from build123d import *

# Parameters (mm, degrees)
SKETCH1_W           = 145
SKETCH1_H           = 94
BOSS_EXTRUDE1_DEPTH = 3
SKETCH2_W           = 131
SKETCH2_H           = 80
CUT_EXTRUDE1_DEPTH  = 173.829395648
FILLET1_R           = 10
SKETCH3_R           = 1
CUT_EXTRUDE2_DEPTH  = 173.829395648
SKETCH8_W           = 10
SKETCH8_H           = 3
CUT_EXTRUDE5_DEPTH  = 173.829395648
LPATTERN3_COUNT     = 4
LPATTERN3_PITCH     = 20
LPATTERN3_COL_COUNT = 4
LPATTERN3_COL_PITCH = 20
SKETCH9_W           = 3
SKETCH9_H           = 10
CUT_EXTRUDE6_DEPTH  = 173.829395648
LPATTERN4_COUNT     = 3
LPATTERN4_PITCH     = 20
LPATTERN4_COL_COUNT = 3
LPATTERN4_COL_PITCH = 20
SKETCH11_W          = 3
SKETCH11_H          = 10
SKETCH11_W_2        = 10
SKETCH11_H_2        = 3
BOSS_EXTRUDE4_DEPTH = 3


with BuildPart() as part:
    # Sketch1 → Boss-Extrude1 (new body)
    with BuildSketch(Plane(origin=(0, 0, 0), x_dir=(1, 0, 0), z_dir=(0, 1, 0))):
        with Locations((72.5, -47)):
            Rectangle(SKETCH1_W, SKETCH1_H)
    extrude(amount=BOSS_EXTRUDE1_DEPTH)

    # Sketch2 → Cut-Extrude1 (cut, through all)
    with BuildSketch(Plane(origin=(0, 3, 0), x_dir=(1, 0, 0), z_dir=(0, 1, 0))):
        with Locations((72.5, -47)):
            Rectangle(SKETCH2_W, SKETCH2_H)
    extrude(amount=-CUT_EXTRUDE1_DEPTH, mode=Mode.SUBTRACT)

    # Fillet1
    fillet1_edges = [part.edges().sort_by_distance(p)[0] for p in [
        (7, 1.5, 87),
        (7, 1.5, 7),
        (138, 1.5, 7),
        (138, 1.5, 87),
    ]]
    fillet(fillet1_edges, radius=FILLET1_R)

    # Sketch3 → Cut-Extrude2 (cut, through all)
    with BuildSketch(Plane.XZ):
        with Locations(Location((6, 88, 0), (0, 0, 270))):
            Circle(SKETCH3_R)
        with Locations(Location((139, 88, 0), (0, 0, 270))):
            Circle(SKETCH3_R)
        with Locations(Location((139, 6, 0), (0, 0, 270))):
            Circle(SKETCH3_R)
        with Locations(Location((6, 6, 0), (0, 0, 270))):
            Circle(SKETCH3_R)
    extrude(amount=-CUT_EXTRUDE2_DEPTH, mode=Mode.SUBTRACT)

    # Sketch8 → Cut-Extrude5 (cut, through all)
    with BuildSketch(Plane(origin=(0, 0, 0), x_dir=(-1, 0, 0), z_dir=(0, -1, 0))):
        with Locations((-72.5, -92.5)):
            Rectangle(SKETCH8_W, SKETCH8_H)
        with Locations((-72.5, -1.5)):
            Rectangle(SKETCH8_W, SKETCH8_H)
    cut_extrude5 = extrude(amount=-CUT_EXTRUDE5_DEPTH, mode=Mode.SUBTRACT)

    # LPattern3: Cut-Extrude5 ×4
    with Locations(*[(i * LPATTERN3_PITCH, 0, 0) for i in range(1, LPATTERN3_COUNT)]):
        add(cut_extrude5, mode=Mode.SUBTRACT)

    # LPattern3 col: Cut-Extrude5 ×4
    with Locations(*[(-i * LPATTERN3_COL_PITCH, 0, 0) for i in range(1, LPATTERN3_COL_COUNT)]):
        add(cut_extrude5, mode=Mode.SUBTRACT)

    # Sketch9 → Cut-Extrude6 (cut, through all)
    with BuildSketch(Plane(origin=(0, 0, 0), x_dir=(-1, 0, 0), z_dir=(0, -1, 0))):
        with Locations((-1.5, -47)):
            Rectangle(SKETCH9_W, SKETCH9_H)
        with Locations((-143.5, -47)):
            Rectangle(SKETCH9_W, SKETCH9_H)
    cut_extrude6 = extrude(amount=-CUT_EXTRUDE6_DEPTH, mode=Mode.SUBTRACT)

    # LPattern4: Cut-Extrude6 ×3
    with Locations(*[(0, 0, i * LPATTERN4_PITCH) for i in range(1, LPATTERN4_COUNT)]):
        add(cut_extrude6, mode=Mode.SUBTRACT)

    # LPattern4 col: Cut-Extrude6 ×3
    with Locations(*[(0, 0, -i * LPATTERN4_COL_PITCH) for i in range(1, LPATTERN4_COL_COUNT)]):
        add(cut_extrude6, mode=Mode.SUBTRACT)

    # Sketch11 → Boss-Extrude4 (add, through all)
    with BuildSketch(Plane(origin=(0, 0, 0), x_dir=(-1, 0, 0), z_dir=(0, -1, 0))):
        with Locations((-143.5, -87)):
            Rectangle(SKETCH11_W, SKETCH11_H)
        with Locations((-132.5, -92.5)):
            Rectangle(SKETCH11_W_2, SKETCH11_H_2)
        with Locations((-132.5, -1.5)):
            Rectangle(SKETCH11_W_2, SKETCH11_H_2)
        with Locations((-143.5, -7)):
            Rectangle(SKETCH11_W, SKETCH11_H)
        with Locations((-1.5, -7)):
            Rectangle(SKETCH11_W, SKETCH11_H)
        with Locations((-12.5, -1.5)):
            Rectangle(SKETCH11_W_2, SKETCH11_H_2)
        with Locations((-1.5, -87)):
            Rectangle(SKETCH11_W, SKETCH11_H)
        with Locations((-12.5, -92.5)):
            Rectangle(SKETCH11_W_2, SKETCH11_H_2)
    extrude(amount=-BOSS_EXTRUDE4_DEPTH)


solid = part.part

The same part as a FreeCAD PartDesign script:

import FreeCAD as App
import Part
import Sketcher
Q = App.Units.Quantity


def edges_at(feature, points):
    """Names of the edges that pass closest to the given points."""
    edges = feature.Shape.Edges
    near = lambda p: min(range(len(edges)), key=lambda i: edges[i].distToShape(Part.Vertex(*p))[0])
    return sorted({f"Edge{near(p) + 1}" for p in points})

doc = App.newDocument("Part")
body = doc.addObject("PartDesign::Body", "Body")

# Sketch on XZ plane
sketch1 = body.newObject("Sketcher::SketchObject", "Sketch")
sketch1.AttachmentSupport = (doc.getObject("XZ_Plane"), [""])
sketch1.MapMode = "FlatFace"
sketch1.addGeometry([
    Part.LineSegment(App.Vector(0, 0, 0), App.Vector(0, 94, 0)),
    Part.LineSegment(App.Vector(0, 94, 0), App.Vector(145, 94, 0)),
    Part.LineSegment(App.Vector(145, 94, 0), App.Vector(145, 0, 0)),
    Part.LineSegment(App.Vector(145, 0, 0), App.Vector(0, 0, 0)),
], False)
sketch1.addConstraint([
    Sketcher.Constraint("Coincident", 0, 2, 1, 1),
    Sketcher.Constraint("Coincident", 1, 2, 2, 1),
    Sketcher.Constraint("Coincident", 2, 2, 3, 1),
    Sketcher.Constraint("Coincident", 3, 2, 0, 1),
    Sketcher.Constraint("Vertical", 0),
    Sketcher.Constraint("Horizontal", 1),
    Sketcher.Constraint("Vertical", 2),
    Sketcher.Constraint("Horizontal", 3),
    Sketcher.Constraint("Coincident", 3, 2, -1, 1),
    Sketcher.Constraint("DistanceX", 1, 1, 1, 2, Q("145 mm")),
    Sketcher.Constraint("DistanceY", 0, 1, 0, 2, Q("94 mm")),
])
pad1 = body.newObject("PartDesign::Pad", "Pad")
pad1.Profile = sketch1
pad1.Length = 3
pad1.Reversed = True

# Sketch on XZ plane
sketch2 = body.newObject("Sketcher::SketchObject", "Sketch001")
sketch2.AttachmentSupport = (doc.getObject("XZ_Plane"), [""])
sketch2.MapMode = "FlatFace"
sketch2.AttachmentOffset = App.Placement(App.Vector(0, 0, -3), App.Rotation())
sketch2.addGeometry([
    Part.LineSegment(App.Vector(7, 7, 0), App.Vector(7, 87, 0)),
    Part.LineSegment(App.Vector(7, 87, 0), App.Vector(138, 87, 0)),
    Part.LineSegment(App.Vector(138, 87, 0), App.Vector(138, 7, 0)),
    Part.LineSegment(App.Vector(138, 7, 0), App.Vector(7, 7, 0)),
], False)
sketch2.addConstraint([
    Sketcher.Constraint("Coincident", 0, 2, 1, 1),
    Sketcher.Constraint("Coincident", 1, 2, 2, 1),
    Sketcher.Constraint("Coincident", 2, 2, 3, 1),
    Sketcher.Constraint("Coincident", 3, 2, 0, 1),
    Sketcher.Constraint("Vertical", 0),
    Sketcher.Constraint("Horizontal", 1),
    Sketcher.Constraint("Vertical", 2),
    Sketcher.Constraint("Horizontal", 3),
    Sketcher.Constraint("DistanceX", 1, 1, 1, 2, Q("131 mm")),
    Sketcher.Constraint("DistanceY", 0, 1, 0, 2, Q("80 mm")),
    Sketcher.Constraint("DistanceX", -1, 1, 0, 2, Q("7 mm")),
    Sketcher.Constraint("DistanceY", -1, 1, 0, 2, Q("87 mm")),
])
pocket1 = body.newObject("PartDesign::Pocket", "Pocket")
pocket1.Profile = sketch2
pocket1.Type = "ThroughAll"
pocket1.Reversed = True
doc.recompute()

fillet = body.newObject("PartDesign::Fillet", "Fillet")
fillet.Base = (pocket1, edges_at(pocket1, [
    (7, 1.5, 87),
    (7, 1.5, 7),
    (138, 1.5, 7),
    (138, 1.5, 87),
]))
fillet.Radius = 10

# Sketch on XZ plane
sketch3 = body.newObject("Sketcher::SketchObject", "Sketch002")
sketch3.AttachmentSupport = (doc.getObject("XZ_Plane"), [""])
sketch3.MapMode = "FlatFace"
sketch3.addGeometry([
    Part.Circle(App.Vector(6, 88, 0), App.Vector(0, 0, 1), 1),
    Part.Circle(App.Vector(139, 88, 0), App.Vector(0, 0, 1), 1),
    Part.Circle(App.Vector(139, 6, 0), App.Vector(0, 0, 1), 1),
    Part.Circle(App.Vector(6, 6, 0), App.Vector(0, 0, 1), 1),
], False)
sketch3.addConstraint([
    Sketcher.Constraint("Equal", 0, 1),
    Sketcher.Constraint("Equal", 1, 2),
    Sketcher.Constraint("Equal", 2, 3),
    Sketcher.Constraint("Horizontal", 0, 3, 1, 3),
    Sketcher.Constraint("Horizontal", 2, 3, 3, 3),
    Sketcher.Constraint("Vertical", 1, 3, 2, 3),
    Sketcher.Constraint("Vertical", 0, 3, 3, 3),
    Sketcher.Constraint("Diameter", 0, Q("2 mm")),
    Sketcher.Constraint("DistanceX", -1, 1, 0, 3, Q("6 mm")),
    Sketcher.Constraint("DistanceY", -1, 1, 0, 3, Q("88 mm")),
    Sketcher.Constraint("DistanceX", -1, 1, 1, 3, Q("139 mm")),
    Sketcher.Constraint("DistanceY", -1, 1, 2, 3, Q("6 mm")),
])
pocket2 = body.newObject("PartDesign::Pocket", "Pocket001")
pocket2.Profile = sketch3
pocket2.Type = "ThroughAll"

# Sketch on XZ plane
sketch4 = body.newObject("Sketcher::SketchObject", "Sketch003")
sketch4.AttachmentSupport = (doc.getObject("XZ_Plane"), [""])
sketch4.MapMode = "FlatFace"
sketch4.addGeometry([
    Part.LineSegment(App.Vector(77.5, 91, 0), App.Vector(77.5, 94, 0)),  # 0
    Part.LineSegment(App.Vector(77.5, 94, 0), App.Vector(67.5, 94, 0)),  # 1
    Part.LineSegment(App.Vector(67.5, 94, 0), App.Vector(67.5, 91, 0)),  # 2
    Part.LineSegment(App.Vector(67.5, 91, 0), App.Vector(77.5, 91, 0)),  # 3
    Part.LineSegment(App.Vector(77.5, 0, 0), App.Vector(77.5, 3, 0)),  # 4
    Part.LineSegment(App.Vector(77.5, 3, 0), App.Vector(67.5, 3, 0)),  # 5
    Part.LineSegment(App.Vector(67.5, 3, 0), App.Vector(67.5, 0, 0)),  # 6
    Part.LineSegment(App.Vector(67.5, 0, 0), App.Vector(77.5, 0, 0)),  # 7
], False)
sketch4.addConstraint([
    Sketcher.Constraint("Coincident", 0, 2, 1, 1),
    Sketcher.Constraint("Coincident", 1, 2, 2, 1),
    Sketcher.Constraint("Coincident", 2, 2, 3, 1),
    Sketcher.Constraint("Coincident", 3, 2, 0, 1),
    Sketcher.Constraint("Coincident", 4, 2, 5, 1),
    Sketcher.Constraint("Coincident", 5, 2, 6, 1),
    Sketcher.Constraint("Coincident", 6, 2, 7, 1),
    Sketcher.Constraint("Coincident", 7, 2, 4, 1),
    Sketcher.Constraint("Vertical", 0),
    Sketcher.Constraint("Horizontal", 1),
    Sketcher.Constraint("Vertical", 2),
    Sketcher.Constraint("Horizontal", 3),
    Sketcher.Constraint("Vertical", 4),
    Sketcher.Constraint("Horizontal", 5),
    Sketcher.Constraint("Vertical", 6),
    Sketcher.Constraint("Horizontal", 7),
    Sketcher.Constraint("PointOnObject", 6, 2, -1),
    Sketcher.Constraint("Vertical", 3, 2, 4, 2),
    Sketcher.Constraint("Vertical", 2, 2, 5, 2),
    Sketcher.Constraint("Equal", 2, 4),
    Sketcher.Constraint("DistanceX", 1, 2, 1, 1, Q("10 mm")),
    Sketcher.Constraint("DistanceY", 0, 1, 0, 2, Q("3 mm")),
    Sketcher.Constraint("DistanceY", -1, 1, 0, 2, Q("94 mm")),
    Sketcher.Constraint("DistanceX", -1, 1, 0, 2, Q("77.5 mm")),
])
pocket3 = body.newObject("PartDesign::Pocket", "Pocket002")
pocket3.Profile = sketch4
pocket3.Type = "ThroughAll"
doc.recompute()

linearpattern = body.newObject("PartDesign::LinearPattern", "LinearPattern")
linearpattern.Originals = [pocket3]
linearpattern.Direction = (doc.getObject("X_Axis"), [""])
linearpattern.Mode = "offset"
linearpattern.Offset = 20
linearpattern.Occurrences = 4
body.Tip = linearpattern
doc.recompute()

linearpattern2 = body.newObject("PartDesign::LinearPattern", "LinearPattern001")
linearpattern2.Originals = [pocket3]
linearpattern2.Direction = (doc.getObject("X_Axis"), [""])
linearpattern2.Mode = "offset"
linearpattern2.Offset = 20
linearpattern2.Occurrences = 4
linearpattern2.Reversed = True
body.Tip = linearpattern2

# Sketch on XZ plane
sketch5 = body.newObject("Sketcher::SketchObject", "Sketch004")
sketch5.AttachmentSupport = (doc.getObject("XZ_Plane"), [""])
sketch5.MapMode = "FlatFace"
sketch5.addGeometry([
    Part.LineSegment(App.Vector(3, 42, 0), App.Vector(3, 52, 0)),  # 0
    Part.LineSegment(App.Vector(3, 52, 0), App.Vector(0, 52, 0)),  # 1
    Part.LineSegment(App.Vector(0, 52, 0), App.Vector(0, 42, 0)),  # 2
    Part.LineSegment(App.Vector(0, 42, 0), App.Vector(3, 42, 0)),  # 3
    Part.LineSegment(App.Vector(145, 42, 0), App.Vector(145, 52, 0)),  # 4
    Part.LineSegment(App.Vector(145, 52, 0), App.Vector(142, 52, 0)),  # 5
    Part.LineSegment(App.Vector(142, 52, 0), App.Vector(142, 42, 0)),  # 6
    Part.LineSegment(App.Vector(142, 42, 0), App.Vector(145, 42, 0)),  # 7
], False)
sketch5.addConstraint([
    Sketcher.Constraint("Coincident", 0, 2, 1, 1),
    Sketcher.Constraint("Coincident", 1, 2, 2, 1),
    Sketcher.Constraint("Coincident", 2, 2, 3, 1),
    Sketcher.Constraint("Coincident", 3, 2, 0, 1),
    Sketcher.Constraint("Coincident", 4, 2, 5, 1),
    Sketcher.Constraint("Coincident", 5, 2, 6, 1),
    Sketcher.Constraint("Coincident", 6, 2, 7, 1),
    Sketcher.Constraint("Coincident", 7, 2, 4, 1),
    Sketcher.Constraint("Vertical", 0),
    Sketcher.Constraint("Horizontal", 1),
    Sketcher.Constraint("Vertical", 2),
    Sketcher.Constraint("Horizontal", 3),
    Sketcher.Constraint("Vertical", 4),
    Sketcher.Constraint("Horizontal", 5),
    Sketcher.Constraint("Vertical", 6),
    Sketcher.Constraint("Horizontal", 7),
    Sketcher.Constraint("PointOnObject", 1, 2, -2),
    Sketcher.Constraint("Horizontal", 1, 2, 4, 2),
    Sketcher.Constraint("Horizontal", 3, 2, 6, 2),
    Sketcher.Constraint("Equal", 3, 5),
    Sketcher.Constraint("DistanceX", 1, 2, 1, 1, Q("3 mm")),
    Sketcher.Constraint("DistanceY", 0, 1, 0, 2, Q("10 mm")),
    Sketcher.Constraint("DistanceY", -1, 1, 0, 2, Q("52 mm")),
    Sketcher.Constraint("DistanceX", -1, 1, 4, 2, Q("145 mm")),
])
pocket4 = body.newObject("PartDesign::Pocket", "Pocket003")
pocket4.Profile = sketch5
pocket4.Type = "ThroughAll"
doc.recompute()

linearpattern3 = body.newObject("PartDesign::LinearPattern", "LinearPattern002")
linearpattern3.Originals = [pocket4]
linearpattern3.Direction = (doc.getObject("Z_Axis"), [""])
linearpattern3.Mode = "offset"
linearpattern3.Offset = 20
linearpattern3.Occurrences = 3
body.Tip = linearpattern3
doc.recompute()

linearpattern4 = body.newObject("PartDesign::LinearPattern", "LinearPattern003")
linearpattern4.Originals = [pocket4]
linearpattern4.Direction = (doc.getObject("Z_Axis"), [""])
linearpattern4.Mode = "offset"
linearpattern4.Offset = 20
linearpattern4.Occurrences = 3
linearpattern4.Reversed = True
body.Tip = linearpattern4

# Sketch on XZ plane
sketch6 = body.newObject("Sketcher::SketchObject", "Sketch005")
sketch6.AttachmentSupport = (doc.getObject("XZ_Plane"), [""])
sketch6.MapMode = "FlatFace"
sketch6.addGeometry([
    Part.LineSegment(App.Vector(145, 82, 0), App.Vector(145, 92, 0)),  # 0
    Part.LineSegment(App.Vector(145, 92, 0), App.Vector(142, 92, 0)),  # 1
    Part.LineSegment(App.Vector(142, 92, 0), App.Vector(142, 82, 0)),  # 2
    Part.LineSegment(App.Vector(142, 82, 0), App.Vector(145, 82, 0)),  # 3
    Part.LineSegment(App.Vector(137.5, 91, 0), App.Vector(137.5, 94, 0)),  # 4
    Part.LineSegment(App.Vector(137.5, 94, 0), App.Vector(127.5, 94, 0)),  # 5
    Part.LineSegment(App.Vector(127.5, 94, 0), App.Vector(127.5, 91, 0)),  # 6
    Part.LineSegment(App.Vector(127.5, 91, 0), App.Vector(137.5, 91, 0)),  # 7
    Part.LineSegment(App.Vector(137.5, 0, 0), App.Vector(137.5, 3, 0)),  # 8
    Part.LineSegment(App.Vector(137.5, 3, 0), App.Vector(127.5, 3, 0)),  # 9
    Part.LineSegment(App.Vector(127.5, 3, 0), App.Vector(127.5, 0, 0)),  # 10
    Part.LineSegment(App.Vector(127.5, 0, 0), App.Vector(137.5, 0, 0)),  # 11
    Part.LineSegment(App.Vector(145, 2, 0), App.Vector(145, 12, 0)),  # 12
    Part.LineSegment(App.Vector(145, 12, 0), App.Vector(142, 12, 0)),  # 13
    Part.LineSegment(App.Vector(142, 12, 0), App.Vector(142, 2, 0)),  # 14
    Part.LineSegment(App.Vector(142, 2, 0), App.Vector(145, 2, 0)),  # 15
    Part.LineSegment(App.Vector(3, 2, 0), App.Vector(3, 12, 0)),  # 16
    Part.LineSegment(App.Vector(3, 12, 0), App.Vector(0, 12, 0)),  # 17
    Part.LineSegment(App.Vector(0, 12, 0), App.Vector(0, 2, 0)),  # 18
    Part.LineSegment(App.Vector(0, 2, 0), App.Vector(3, 2, 0)),  # 19
    Part.LineSegment(App.Vector(17.5, 0, 0), App.Vector(17.5, 3, 0)),  # 20
    Part.LineSegment(App.Vector(17.5, 3, 0), App.Vector(7.5, 3, 0)),  # 21
    Part.LineSegment(App.Vector(7.5, 3, 0), App.Vector(7.5, 0, 0)),  # 22
    Part.LineSegment(App.Vector(7.5, 0, 0), App.Vector(17.5, 0, 0)),  # 23
    Part.LineSegment(App.Vector(3, 82, 0), App.Vector(3, 92, 0)),  # 24
    Part.LineSegment(App.Vector(3, 92, 0), App.Vector(0, 92, 0)),  # 25
    Part.LineSegment(App.Vector(0, 92, 0), App.Vector(0, 82, 0)),  # 26
    Part.LineSegment(App.Vector(0, 82, 0), App.Vector(3, 82, 0)),  # 27
    Part.LineSegment(App.Vector(17.5, 91, 0), App.Vector(17.5, 94, 0)),  # 28
    Part.LineSegment(App.Vector(17.5, 94, 0), App.Vector(7.5, 94, 0)),  # 29
    Part.LineSegment(App.Vector(7.5, 94, 0), App.Vector(7.5, 91, 0)),  # 30
    Part.LineSegment(App.Vector(7.5, 91, 0), App.Vector(17.5, 91, 0)),  # 31
], False)
sketch6.addConstraint([
    Sketcher.Constraint("Coincident", 0, 2, 1, 1),
    Sketcher.Constraint("Coincident", 1, 2, 2, 1),
    Sketcher.Constraint("Coincident", 2, 2, 3, 1),
    Sketcher.Constraint("Coincident", 3, 2, 0, 1),
    Sketcher.Constraint("Coincident", 4, 2, 5, 1),
    Sketcher.Constraint("Coincident", 5, 2, 6, 1),
    Sketcher.Constraint("Coincident", 6, 2, 7, 1),
    Sketcher.Constraint("Coincident", 7, 2, 4, 1),
    Sketcher.Constraint("Coincident", 8, 2, 9, 1),
    Sketcher.Constraint("Coincident", 9, 2, 10, 1),
    Sketcher.Constraint("Coincident", 10, 2, 11, 1),
    Sketcher.Constraint("Coincident", 11, 2, 8, 1),
    Sketcher.Constraint("Coincident", 12, 2, 13, 1),
    Sketcher.Constraint("Coincident", 13, 2, 14, 1),
    Sketcher.Constraint("Coincident", 14, 2, 15, 1),
    Sketcher.Constraint("Coincident", 15, 2, 12, 1),
    Sketcher.Constraint("Coincident", 16, 2, 17, 1),
    Sketcher.Constraint("Coincident", 17, 2, 18, 1),
    Sketcher.Constraint("Coincident", 18, 2, 19, 1),
    Sketcher.Constraint("Coincident", 19, 2, 16, 1),
    Sketcher.Constraint("Coincident", 20, 2, 21, 1),
    Sketcher.Constraint("Coincident", 21, 2, 22, 1),
    Sketcher.Constraint("Coincident", 22, 2, 23, 1),
    Sketcher.Constraint("Coincident", 23, 2, 20, 1),
    Sketcher.Constraint("Coincident", 24, 2, 25, 1),
    Sketcher.Constraint("Coincident", 25, 2, 26, 1),
    Sketcher.Constraint("Coincident", 26, 2, 27, 1),
    Sketcher.Constraint("Coincident", 27, 2, 24, 1),
    Sketcher.Constraint("Coincident", 28, 2, 29, 1),
    Sketcher.Constraint("Coincident", 29, 2, 30, 1),
    Sketcher.Constraint("Coincident", 30, 2, 31, 1),
    Sketcher.Constraint("Coincident", 31, 2, 28, 1),
    Sketcher.Constraint("Vertical", 0),
    Sketcher.Constraint("Horizontal", 1),
    Sketcher.Constraint("Vertical", 2),
    Sketcher.Constraint("Horizontal", 3),
    Sketcher.Constraint("Vertical", 4),
    Sketcher.Constraint("Horizontal", 5),
    Sketcher.Constraint("Vertical", 6),
    Sketcher.Constraint("Horizontal", 7),
    Sketcher.Constraint("Vertical", 8),
    Sketcher.Constraint("Horizontal", 9),
    Sketcher.Constraint("Vertical", 10),
    Sketcher.Constraint("Horizontal", 11),
    Sketcher.Constraint("Vertical", 12),
    Sketcher.Constraint("Horizontal", 13),
    Sketcher.Constraint("Vertical", 14),
    Sketcher.Constraint("Horizontal", 15),
    Sketcher.Constraint("Vertical", 16),
    Sketcher.Constraint("Horizontal", 17),
    Sketcher.Constraint("Vertical", 18),
    Sketcher.Constraint("Horizontal", 19),
    Sketcher.Constraint("Vertical", 20),
    Sketcher.Constraint("Horizontal", 21),
    Sketcher.Constraint("Vertical", 22),
    Sketcher.Constraint("Horizontal", 23),
    Sketcher.Constraint("Vertical", 24),
    Sketcher.Constraint("Horizontal", 25),
    Sketcher.Constraint("Vertical", 26),
    Sketcher.Constraint("Horizontal", 27),
    Sketcher.Constraint("Vertical", 28),
    Sketcher.Constraint("Horizontal", 29),
    Sketcher.Constraint("Vertical", 30),
    Sketcher.Constraint("Horizontal", 31),
    Sketcher.Constraint("PointOnObject", 10, 2, -1),
    Sketcher.Constraint("PointOnObject", 17, 2, -2),
    Sketcher.Constraint("PointOnObject", 22, 2, -1),
    Sketcher.Constraint("PointOnObject", 25, 2, -2),
    Sketcher.Constraint("Horizontal", 13, 2, 16, 2),
    Sketcher.Constraint("Horizontal", 15, 2, 18, 2),
    Sketcher.Constraint("Horizontal", 9, 2, 20, 2),
    Sketcher.Constraint("Horizontal", 1, 2, 24, 2),
    Sketcher.Constraint("Horizontal", 3, 2, 26, 2),
    Sketcher.Constraint("Horizontal", 5, 2, 28, 2),
    Sketcher.Constraint("Horizontal", 7, 2, 30, 2),
    Sketcher.Constraint("Vertical", 7, 2, 8, 2),
    Sketcher.Constraint("Vertical", 6, 2, 9, 2),
    Sketcher.Constraint("Vertical", 3, 2, 12, 2),
    Sketcher.Constraint("Vertical", 2, 2, 13, 2),
    Sketcher.Constraint("Vertical", 19, 2, 24, 2),
    Sketcher.Constraint("Vertical", 23, 2, 28, 2),
    Sketcher.Constraint("Vertical", 22, 2, 29, 2),
    Sketcher.Constraint("Equal", 15, 17),
    Sketcher.Constraint("Equal", 11, 21),
    Sketcher.Constraint("Equal", 31, 0),
    Sketcher.Constraint("Equal", 27, 4),
    Sketcher.Constraint("Equal", 6, 8),
    Sketcher.Constraint("Equal", 2, 12),
    Sketcher.Constraint("DistanceX", 1, 2, 1, 1, Q("3 mm")),
    Sketcher.Constraint("DistanceX", 5, 2, 5, 1, Q("10 mm")),
    Sketcher.Constraint("DistanceX", -1, 1, 0, 2, Q("145 mm")),
    Sketcher.Constraint("DistanceY", -1, 1, 0, 2, Q("92 mm")),
    Sketcher.Constraint("DistanceY", -1, 1, 4, 2, Q("94 mm")),
    Sketcher.Constraint("DistanceY", -1, 1, 12, 2, Q("12 mm")),
    Sketcher.Constraint("DistanceX", 20, 2, 9, 2, Q("110 mm")),
    Sketcher.Constraint("DistanceX", -1, 1, 4, 2, Q("137.5 mm")),
])
pad2 = body.newObject("PartDesign::Pad", "Pad001")
pad2.Profile = sketch6
pad2.Length = 3
pad2.Reversed = True

doc.recompute()
